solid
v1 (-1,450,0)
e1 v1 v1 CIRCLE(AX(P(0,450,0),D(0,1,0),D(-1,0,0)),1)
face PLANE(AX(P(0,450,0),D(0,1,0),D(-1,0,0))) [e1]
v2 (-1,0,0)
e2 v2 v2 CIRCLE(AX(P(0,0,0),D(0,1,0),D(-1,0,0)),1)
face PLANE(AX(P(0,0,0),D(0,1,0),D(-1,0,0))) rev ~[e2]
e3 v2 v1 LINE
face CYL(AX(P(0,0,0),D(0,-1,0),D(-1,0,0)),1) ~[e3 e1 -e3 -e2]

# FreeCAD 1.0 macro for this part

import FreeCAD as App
import Part
import Sketcher
from FreeCAD import Vector
Q = App.Units.Quantity

doc = App.newDocument("Part")
params = doc.addObject("Spreadsheet::Sheet", "Params")
for row, (alias, value) in enumerate([
    ("sketch1_diameter", "2 mm"),
    ("pad1_length", "450 mm"),
], start=1):
    params.set(f"A{row}", alias)
    params.set(f"B{row}", "=" + value)
    params.setAlias(f"B{row}", alias)

body = doc.addObject("PartDesign::Body", "Body")

# Sketch on XZ plane
sketch1 = body.newObject("Sketcher::SketchObject", "Sketch")
sketch1.AttachmentSupport = (doc.getObject("XZ_Plane"), [""])
sketch1.MapMode = "FlatFace"
sketch1.addGeometry(Part.Circle(Vector(0, 0, 0), Vector(0, 0, 1), 1), False)
sketch1.addConstraint(Sketcher.Constraint("Coincident", 0, 3, -1, 1))
sketch1.addConstraint(Sketcher.Constraint("Diameter", 0, Q("2 mm")))
sketch1.setExpression("Constraints[1]", "Params.sketch1_diameter")
pad1 = body.newObject("PartDesign::Pad", "Pad")
pad1.Profile = sketch1
pad1.setExpression("Length", "Params.pad1_length")
pad1.Reversed = True

doc.recompute()
